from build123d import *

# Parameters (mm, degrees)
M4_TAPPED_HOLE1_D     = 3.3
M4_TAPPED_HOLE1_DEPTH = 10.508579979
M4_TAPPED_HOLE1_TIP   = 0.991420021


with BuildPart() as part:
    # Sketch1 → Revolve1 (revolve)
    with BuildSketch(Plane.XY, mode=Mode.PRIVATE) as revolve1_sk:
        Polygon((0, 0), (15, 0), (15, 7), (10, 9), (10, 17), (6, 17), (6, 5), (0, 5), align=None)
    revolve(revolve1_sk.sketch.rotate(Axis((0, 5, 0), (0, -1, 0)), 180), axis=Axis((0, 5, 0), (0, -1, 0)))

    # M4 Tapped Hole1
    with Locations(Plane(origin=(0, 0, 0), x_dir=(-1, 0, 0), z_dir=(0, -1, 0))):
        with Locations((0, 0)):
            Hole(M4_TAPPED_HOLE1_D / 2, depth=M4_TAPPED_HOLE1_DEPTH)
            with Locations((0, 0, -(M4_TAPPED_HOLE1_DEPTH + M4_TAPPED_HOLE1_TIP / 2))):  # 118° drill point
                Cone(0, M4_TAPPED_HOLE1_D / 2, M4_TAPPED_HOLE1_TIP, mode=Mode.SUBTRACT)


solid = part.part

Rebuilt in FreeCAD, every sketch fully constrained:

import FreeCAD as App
import Part
import Sketcher

V = App.Vector

doc = App.newDocument("Part")
body = doc.addObject("PartDesign::Body", "Body")

# Sketch on XY plane
sketch1 = body.newObject("Sketcher::SketchObject", "Sketch")
sketch1.AttachmentSupport = (doc.getObject("XY_Plane"), [""])
sketch1.MapMode = "FlatFace"
sketch1.addGeometry([
    Part.LineSegment(V(0, 0, 0), V(15, 0, 0)),  # 0
    Part.LineSegment(V(15, 0, 0), V(15, 7, 0)),  # 1
    Part.LineSegment(V(15, 7, 0), V(10, 9, 0)),  # 2
    Part.LineSegment(V(10, 9, 0), V(10, 17, 0)),  # 3
    Part.LineSegment(V(10, 17, 0), V(6, 17, 0)),  # 4
    Part.LineSegment(V(6, 17, 0), V(6, 5, 0)),  # 5
    Part.LineSegment(V(6, 5, 0), V(0, 5, 0)),  # 6
    Part.LineSegment(V(0, 5, 0), V(0, 0, 0)),  # 7
], False)
sketch1.addConstraint([
    Sketcher.Constraint("Coincident", 0, 2, 1, 1),
    Sketcher.Constraint("Coincident", 1, 2, 2, 1),
    Sketcher.Constraint("Coincident", 2, 2, 3, 1),
    Sketcher.Constraint("Coincident", 3, 2, 4, 1),
    Sketcher.Constraint("Coincident", 4, 2, 5, 1),
    Sketcher.Constraint("Coincident", 5, 2, 6, 1),
    Sketcher.Constraint("Coincident", 6, 2, 7, 1),
    Sketcher.Constraint("Coincident", 7, 2, 0, 1),
    Sketcher.Constraint("Horizontal", 0),
    Sketcher.Constraint("Vertical", 1),
    Sketcher.Constraint("Vertical", 3),
    Sketcher.Constraint("Horizontal", 4),
    Sketcher.Constraint("Vertical", 5),
    Sketcher.Constraint("Horizontal", 6),
    Sketcher.Constraint("Vertical", 7),
    Sketcher.Constraint("Coincident", 7, 2, -1, 1),
    Sketcher.Constraint("DistanceX", 0, 1, 0, 2, 15.0),
    Sketcher.Constraint("DistanceX", 4, 2, 4, 1, 4.0),
    Sketcher.Constraint("DistanceX", 6, 2, 6, 1, 6.0),
    Sketcher.Constraint("DistanceY", 1, 1, 1, 2, 7.0),
    Sketcher.Constraint("DistanceY", 3, 1, 3, 2, 8.0),
    Sketcher.Constraint("DistanceY", 5, 2, 5, 1, 12.0),
    Sketcher.Constraint("DistanceY", 7, 2, 7, 1, 5.0),
])
revolution = body.newObject("PartDesign::Revolution", "Revolution")
revolution.Profile = sketch1
revolution.ReferenceAxis = (sketch1, ["V_Axis"])
revolution.Angle = 360

# Sketch on XZ plane
sketch2 = body.newObject("Sketcher::SketchObject", "Sketch001")
sketch2.AttachmentSupport = (doc.getObject("XZ_Plane"), [""])
sketch2.MapMode = "FlatFace"
sketch2.addGeometry(Part.Circle(V(0, 0, 0), V(0, 0, 1), 1.6), False)
sketch2.addConstraint([
    Sketcher.Constraint("Coincident", 0, 3, -1, 1),
    Sketcher.Constraint("Diameter", 0, 3.3),
])
doc.recompute()
hole = body.newObject("PartDesign::Hole", "Hole")
hole.Profile = sketch2
hole.ThreadType = "None"
hole.Diameter = 3.3
hole.DepthType = "Dimension"
hole.Depth = 10.50858
hole.DrillPoint = "Angled"
hole.DrillPointAngle = 118

doc.recompute()
